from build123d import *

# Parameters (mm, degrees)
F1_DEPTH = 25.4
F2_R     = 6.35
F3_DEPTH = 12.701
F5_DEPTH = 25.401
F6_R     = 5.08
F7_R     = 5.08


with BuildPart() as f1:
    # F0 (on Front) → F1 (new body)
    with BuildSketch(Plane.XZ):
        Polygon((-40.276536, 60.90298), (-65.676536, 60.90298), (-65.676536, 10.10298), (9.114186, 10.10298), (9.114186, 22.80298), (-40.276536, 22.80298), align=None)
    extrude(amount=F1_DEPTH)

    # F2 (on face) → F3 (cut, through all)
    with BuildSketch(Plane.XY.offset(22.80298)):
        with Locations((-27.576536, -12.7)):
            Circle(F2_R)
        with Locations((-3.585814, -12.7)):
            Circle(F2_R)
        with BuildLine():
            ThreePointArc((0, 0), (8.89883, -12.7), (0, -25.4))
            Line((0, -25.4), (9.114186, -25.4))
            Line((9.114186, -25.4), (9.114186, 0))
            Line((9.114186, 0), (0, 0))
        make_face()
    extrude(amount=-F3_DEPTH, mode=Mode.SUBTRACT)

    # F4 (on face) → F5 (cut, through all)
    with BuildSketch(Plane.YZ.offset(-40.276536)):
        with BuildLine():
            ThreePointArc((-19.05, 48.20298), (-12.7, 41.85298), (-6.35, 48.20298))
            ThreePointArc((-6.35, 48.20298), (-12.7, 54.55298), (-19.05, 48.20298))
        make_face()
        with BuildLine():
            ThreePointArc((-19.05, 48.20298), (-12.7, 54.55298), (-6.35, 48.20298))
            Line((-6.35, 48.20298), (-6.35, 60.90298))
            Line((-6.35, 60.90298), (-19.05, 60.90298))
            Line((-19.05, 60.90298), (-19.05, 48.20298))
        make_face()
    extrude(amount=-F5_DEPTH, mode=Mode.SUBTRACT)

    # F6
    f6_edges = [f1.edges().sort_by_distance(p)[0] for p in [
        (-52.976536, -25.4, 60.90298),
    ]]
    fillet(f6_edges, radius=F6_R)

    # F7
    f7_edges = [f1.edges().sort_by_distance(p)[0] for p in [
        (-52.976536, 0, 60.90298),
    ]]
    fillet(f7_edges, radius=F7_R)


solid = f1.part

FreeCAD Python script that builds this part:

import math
import FreeCAD as App
import Part
import Sketcher
from FreeCAD import Vector
Q = App.Units.Quantity


def edges_at(feature, points):
    """Names of the edges that pass closest to the given points."""
    edges = feature.Shape.Edges
    near = lambda p: min(range(len(edges)), key=lambda i: edges[i].distToShape(Part.Vertex(*p))[0])
    return sorted({f"Edge{near(p) + 1}" for p in points})

doc = App.newDocument("Part")
params = doc.addObject("Spreadsheet::Sheet", "Params")
for row, (alias, value) in enumerate([
    ("sketch1_width", "1 in"),
    ("sketch1_height", "2 in"),
    ("sketch1_height2", "0.5 in"),
    ("pad1_length", "1 in"),
    ("sketch2_diameter", "0.5 in"),
    ("sketch2_height", "1 in"),
    ("sketch3_radius", "0.25 in"),
    ("fillet_radius", "0.2 in"),
    ("fillet2_radius", "0.2 in"),
], start=1):
    params.set(f"A{row}", alias)
    params.set(f"B{row}", "=" + value)
    params.setAlias(f"B{row}", alias)

body = doc.addObject("PartDesign::Body", "Body")

# Sketch on XZ plane
sketch1 = doc.addObject("Sketcher::SketchObject", "Sketch")
body.addObject(sketch1)
sketch1.AttachmentSupport = (doc.XZ_Plane, [""])
sketch1.MapMode = "FlatFace"
sketch1.addGeometry([
    Part.LineSegment(Vector(-40.276536, 60.90298, 0), Vector(-65.676536, 60.90298, 0)),  # 0
    Part.LineSegment(Vector(-65.676536, 60.90298, 0), Vector(-65.676536, 10.10298, 0)),  # 1
    Part.LineSegment(Vector(-65.676536, 10.10298, 0), Vector(9.114186, 10.10298, 0)),  # 2
    Part.LineSegment(Vector(9.114186, 10.10298, 0), Vector(9.114186, 22.80298, 0)),  # 3
    Part.LineSegment(Vector(9.114186, 22.80298, 0), Vector(-40.276536, 22.80298, 0)),  # 4
    Part.LineSegment(Vector(-40.276536, 22.80298, 0), Vector(-40.276536, 60.90298, 0)),  # 5
], False)
sketch1.addConstraint([
    Sketcher.Constraint("Coincident", 0, 2, 1, 1),
    Sketcher.Constraint("Coincident", 1, 2, 2, 1),
    Sketcher.Constraint("Coincident", 2, 2, 3, 1),
    Sketcher.Constraint("Coincident", 3, 2, 4, 1),
    Sketcher.Constraint("Coincident", 4, 2, 5, 1),
    Sketcher.Constraint("Coincident", 5, 2, 0, 1),
    Sketcher.Constraint("Horizontal", 0),
    Sketcher.Constraint("Vertical", 1),
    Sketcher.Constraint("Horizontal", 2),
    Sketcher.Constraint("Vertical", 3),
    Sketcher.Constraint("Horizontal", 4),
    Sketcher.Constraint("Vertical", 5),
    Sketcher.Constraint("DistanceX", 0, 2, 0, 1, Q("1 in")),
    Sketcher.Constraint("DistanceY", 1, 2, 1, 1, Q("2 in")),
    Sketcher.Constraint("DistanceY", 3, 1, 3, 2, Q("0.5 in")),
    Sketcher.Constraint("DistanceX", 4, 2, 4, 1, Q("49.390722 mm")),
    Sketcher.Constraint("DistanceY", -1, 1, 0, 2, Q("60.90298 mm")),
    Sketcher.Constraint("DistanceX", 0, 2, -1, 1, Q("65.676536 mm")),
])
sketch1.setExpression("Constraints[12]", "Params.sketch1_width")
sketch1.setExpression("Constraints[13]", "Params.sketch1_height")
sketch1.setExpression("Constraints[14]", "Params.sketch1_height2")
pad1 = doc.addObject("PartDesign::Pad", "Pad")
body.addObject(pad1)
pad1.Profile = sketch1
pad1.setExpression("Length", "Params.pad1_length")

# Sketch on XY plane
sketch2 = doc.addObject("Sketcher::SketchObject", "Sketch001")
body.addObject(sketch2)
sketch2.AttachmentSupport = (doc.XY_Plane, [""])
sketch2.MapMode = "FlatFace"
sketch2.AttachmentOffset = App.Placement(Vector(0, 0, 22.80298), App.Rotation())
sketch2.addGeometry([
    Part.Circle(Vector(-27.576536, -12.7, 0), Vector(0, 0, 1), 6.35),  # 0
    Part.Circle(Vector(-3.585814, -12.7, 0), Vector(0, 0, 1), 6.35),  # 1
    Part.ArcOfCircle(Part.Circle(Vector(-4.613012, -12.7, 0), Vector(0, 0, 1), 13.511842), math.radians(-70.037495), math.radians(70.037495)),  # 2
    Part.LineSegment(Vector(0, -25.4, 0), Vector(9.114186, -25.4, 0)),  # 3
    Part.LineSegment(Vector(9.114186, -25.4, 0), Vector(9.114186, 0, 0)),  # 4
    Part.LineSegment(Vector(9.114186, 0, 0), Vector(0, 0, 0)),  # 5
], False)
sketch2.addConstraint([
    Sketcher.Constraint("Coincident", 2, 1, 3, 1),
    Sketcher.Constraint("Coincident", 3, 2, 4, 1),
    Sketcher.Constraint("Coincident", 4, 2, 5, 1),
    Sketcher.Constraint("Coincident", 5, 2, 2, 2),
    Sketcher.Constraint("Horizontal", 3),
    Sketcher.Constraint("Vertical", 4),
    Sketcher.Constraint("Horizontal", 5),
    Sketcher.Constraint("Coincident", 5, 2, -1, 1),
    Sketcher.Constraint("Equal", 0, 1),
    Sketcher.Constraint("PointOnObject", 2, 1, -2),
    Sketcher.Constraint("Horizontal", 0, 3, 1, 3),
    Sketcher.Constraint("Horizontal", 1, 3, 2, 3),
    Sketcher.Constraint("Diameter", 0, Q("0.5 in")),
    Sketcher.Constraint("DistanceY", 4, 1, 4, 2, Q("1 in")),
    Sketcher.Constraint("DistanceX", 1, 3, 3, 2, Q("0.5 in")),
    Sketcher.Constraint("Radius", 2, Q("13.511842 mm")),
    Sketcher.Constraint("DistanceX", 2, 3, 1, 3, Q("1.027198 mm")),
    Sketcher.Constraint("DistanceX", 0, 3, -1, 1, Q("27.576536 mm")),
])
sketch2.setExpression("Constraints[12]", "Params.sketch2_diameter")
sketch2.setExpression("Constraints[13]", "Params.sketch2_height")
pocket1 = doc.addObject("PartDesign::Pocket", "Pocket")
body.addObject(pocket1)
pocket1.Profile = sketch2
pocket1.Type = "ThroughAll"

# Sketch on YZ plane
sketch3 = doc.addObject("Sketcher::SketchObject", "Sketch002")
body.addObject(sketch3)
sketch3.AttachmentSupport = (doc.YZ_Plane, [""])
sketch3.MapMode = "FlatFace"
sketch3.AttachmentOffset = App.Placement(Vector(0, 0, -40.276536), App.Rotation())
sketch3.addGeometry([
    Part.ArcOfCircle(Part.Circle(Vector(-12.7, 48.20298, 0), Vector(0, 0, 1), 6.35), math.radians(180), math.radians(360)),
    Part.LineSegment(Vector(-6.35, 48.20298, 0), Vector(-6.35, 60.90298, 0)),
    Part.LineSegment(Vector(-6.35, 60.90298, 0), Vector(-19.05, 60.90298, 0)),
    Part.LineSegment(Vector(-19.05, 60.90298, 0), Vector(-19.05, 48.20298, 0)),
], False)
sketch3.addConstraint([
    Sketcher.Constraint("Tangent", 0, 2, 1, 1),
    Sketcher.Constraint("Coincident", 1, 2, 2, 1),
    Sketcher.Constraint("Coincident", 2, 2, 3, 1),
    Sketcher.Constraint("Tangent", 3, 2, 0, 1),
    Sketcher.Constraint("Vertical", 1),
    Sketcher.Constraint("Horizontal", 2),
    Sketcher.Constraint("Vertical", 3),
    Sketcher.Constraint("Equal", 2, 1),
    Sketcher.Constraint("Radius", 0, Q("0.25 in")),
    Sketcher.Constraint("DistanceX", 0, 3, -1, 1, Q("0.5 in")),
    Sketcher.Constraint("DistanceY", -1, 1, 0, 3, Q("48.20298 mm")),
])
sketch3.setExpression("Constraints[8]", "Params.sketch3_radius")
pocket2 = doc.addObject("PartDesign::Pocket", "Pocket001")
body.addObject(pocket2)
pocket2.Profile = sketch3
pocket2.Type = "ThroughAll"
doc.recompute()

fillet = doc.addObject("PartDesign::Fillet", "Fillet")
body.addObject(fillet)
fillet.Base = (pocket2, edges_at(pocket2, [(-52.977, -25.4, 60.903)]))
fillet.setExpression("Radius", "Params.fillet_radius")
doc.recompute()

fillet2 = doc.addObject("PartDesign::Fillet", "Fillet001")
body.addObject(fillet2)
fillet2.Base = (fillet, edges_at(fillet, [(-52.977, 0, 60.903)]))
fillet2.setExpression("Radius", "Params.fillet2_radius")

doc.recompute()
